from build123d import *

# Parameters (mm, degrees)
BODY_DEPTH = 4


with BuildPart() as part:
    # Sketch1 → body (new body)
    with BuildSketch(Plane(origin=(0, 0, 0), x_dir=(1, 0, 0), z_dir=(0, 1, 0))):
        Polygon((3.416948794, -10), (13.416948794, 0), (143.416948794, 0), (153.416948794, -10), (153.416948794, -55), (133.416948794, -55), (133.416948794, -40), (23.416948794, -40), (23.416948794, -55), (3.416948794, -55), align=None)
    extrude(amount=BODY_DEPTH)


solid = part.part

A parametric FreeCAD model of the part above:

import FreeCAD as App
import Part
import Sketcher

V = App.Vector

doc = App.newDocument("Part")
body = doc.addObject("PartDesign::Body", "Body")

sketch1 = doc.addObject("Sketcher::SketchObject", "Sketch")
body.addObject(sketch1)
sketch1.AttachmentSupport = (doc.XZ_Plane, [""])
sketch1.MapMode = "FlatFace"
sketch1.addGeometry(Part.LineSegment(V(13.416949, 0, 0), V(3.416949, 10, 0)), False)
sketch1.addGeometry(Part.LineSegment(V(3.416949, 10, 0), V(3.416949, 55, 0)), False)
sketch1.addGeometry(Part.LineSegment(V(3.416949, 55, 0), V(23.416949, 55, 0)), False)
sketch1.addGeometry(Part.LineSegment(V(23.416949, 55, 0), V(23.416949, 40, 0)), False)
sketch1.addGeometry(Part.LineSegment(V(23.416949, 40, 0), V(133.416949, 40, 0)), False)
sketch1.addGeometry(Part.LineSegment(V(133.416949, 40, 0), V(133.416949, 55, 0)), False)
sketch1.addGeometry(Part.LineSegment(V(133.416949, 55, 0), V(153.416949, 55, 0)), False)
sketch1.addGeometry(Part.LineSegment(V(153.416949, 55, 0), V(153.416949, 10, 0)), False)
sketch1.addGeometry(Part.LineSegment(V(153.416949, 10, 0), V(143.416949, 0, 0)), False)
sketch1.addGeometry(Part.LineSegment(V(143.416949, 0, 0), V(13.416949, 0, 0)), False)
sketch1.addConstraint(Sketcher.Constraint("Coincident", 0, 2, 1, 1))
sketch1.addConstraint(Sketcher.Constraint("Coincident", 1, 2, 2, 1))
sketch1.addConstraint(Sketcher.Constraint("Coincident", 2, 2, 3, 1))
sketch1.addConstraint(Sketcher.Constraint("Coincident", 3, 2, 4, 1))
sketch1.addConstraint(Sketcher.Constraint("Coincident", 4, 2, 5, 1))
sketch1.addConstraint(Sketcher.Constraint("Coincident", 5, 2, 6, 1))
sketch1.addConstraint(Sketcher.Constraint("Coincident", 6, 2, 7, 1))
sketch1.addConstraint(Sketcher.Constraint("Coincident", 7, 2, 8, 1))
sketch1.addConstraint(Sketcher.Constraint("Coincident", 8, 2, 9, 1))
sketch1.addConstraint(Sketcher.Constraint("Coincident", 9, 2, 0, 1))
sketch1.addConstraint(Sketcher.Constraint("Vertical", 1))
sketch1.addConstraint(Sketcher.Constraint("Horizontal", 2))
sketch1.addConstraint(Sketcher.Constraint("Vertical", 3))
sketch1.addConstraint(Sketcher.Constraint("Horizontal", 4))
sketch1.addConstraint(Sketcher.Constraint("Vertical", 5))
sketch1.addConstraint(Sketcher.Constraint("Horizontal", 6))
sketch1.addConstraint(Sketcher.Constraint("Vertical", 7))
sketch1.addConstraint(Sketcher.Constraint("Horizontal", 9))
sketch1.addConstraint(Sketcher.Constraint("PointOnObject", 8, 2, -1))
sketch1.addConstraint(Sketcher.Constraint("Perpendicular", 0, 8))
sketch1.addConstraint(Sketcher.Constraint("Horizontal", 2, 2, 5, 2))
sketch1.addConstraint(Sketcher.Constraint("Horizontal", 0, 2, 7, 2))
sketch1.addConstraint(Sketcher.Constraint("Equal", 2, 6))
sketch1.addConstraint(Sketcher.Constraint("Equal", 0, 8))
sketch1.addConstraint(Sketcher.Constraint("DistanceX", 2, 1, 2, 2, 20.0))
sketch1.addConstraint(Sketcher.Constraint("DistanceX", 4, 1, 4, 2, 110.0))
sketch1.addConstraint(Sketcher.Constraint("DistanceX", 9, 2, 9, 1, 130.0))
sketch1.addConstraint(Sketcher.Constraint("DistanceY", 1, 1, 1, 2, 45.0))
sketch1.addConstraint(Sketcher.Constraint("DistanceY", 3, 2, 3, 1, 15.0))
sketch1.addConstraint(Sketcher.Constraint("DistanceX", -1, 1, 0, 2, 3.416949))
pad1 = doc.addObject("PartDesign::Pad", "Pad")
body.addObject(pad1)
pad1.Profile = sketch1
pad1.Length = 4
pad1.Reversed = True

doc.recompute()
